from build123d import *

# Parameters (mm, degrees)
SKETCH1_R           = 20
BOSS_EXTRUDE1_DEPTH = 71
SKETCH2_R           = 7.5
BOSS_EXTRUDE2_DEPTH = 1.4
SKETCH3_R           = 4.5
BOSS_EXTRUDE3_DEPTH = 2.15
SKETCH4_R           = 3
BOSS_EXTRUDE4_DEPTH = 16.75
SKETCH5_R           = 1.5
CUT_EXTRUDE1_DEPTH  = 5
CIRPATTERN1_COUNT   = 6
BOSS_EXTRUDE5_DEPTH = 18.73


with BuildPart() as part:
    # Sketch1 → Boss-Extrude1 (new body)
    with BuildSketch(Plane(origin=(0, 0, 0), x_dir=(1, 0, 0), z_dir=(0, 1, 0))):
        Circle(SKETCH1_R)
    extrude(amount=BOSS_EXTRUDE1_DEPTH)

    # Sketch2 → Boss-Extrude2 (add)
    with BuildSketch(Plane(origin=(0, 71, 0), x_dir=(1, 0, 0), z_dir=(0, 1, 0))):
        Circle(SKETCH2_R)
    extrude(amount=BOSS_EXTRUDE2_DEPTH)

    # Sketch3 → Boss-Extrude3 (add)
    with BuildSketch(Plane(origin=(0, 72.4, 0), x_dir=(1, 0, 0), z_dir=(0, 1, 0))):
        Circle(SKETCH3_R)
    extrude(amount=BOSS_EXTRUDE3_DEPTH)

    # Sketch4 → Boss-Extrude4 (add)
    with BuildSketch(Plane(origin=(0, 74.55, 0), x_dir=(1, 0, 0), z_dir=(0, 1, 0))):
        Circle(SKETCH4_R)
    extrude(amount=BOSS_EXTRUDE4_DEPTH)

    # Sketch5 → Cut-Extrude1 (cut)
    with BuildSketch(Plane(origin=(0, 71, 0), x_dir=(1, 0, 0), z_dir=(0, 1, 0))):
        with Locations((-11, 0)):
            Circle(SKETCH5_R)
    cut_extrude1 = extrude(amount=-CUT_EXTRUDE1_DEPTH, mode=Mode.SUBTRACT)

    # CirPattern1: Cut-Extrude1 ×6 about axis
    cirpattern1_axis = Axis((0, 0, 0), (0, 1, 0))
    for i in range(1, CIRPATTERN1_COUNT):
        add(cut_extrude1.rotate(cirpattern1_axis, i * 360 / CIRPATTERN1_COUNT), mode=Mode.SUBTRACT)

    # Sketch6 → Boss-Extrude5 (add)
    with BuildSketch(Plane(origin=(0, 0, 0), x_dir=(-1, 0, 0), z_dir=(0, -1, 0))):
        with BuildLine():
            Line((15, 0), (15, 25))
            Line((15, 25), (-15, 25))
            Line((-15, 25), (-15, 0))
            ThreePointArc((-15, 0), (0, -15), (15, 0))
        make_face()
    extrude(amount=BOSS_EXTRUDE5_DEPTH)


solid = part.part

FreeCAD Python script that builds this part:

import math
import FreeCAD as App
import Part
import Sketcher
from FreeCAD import Vector
Q = App.Units.Quantity

doc = App.newDocument("Part")
body = doc.addObject("PartDesign::Body", "Body")

# Sketch on XZ plane
sketch1 = body.newObject("Sketcher::SketchObject", "Sketch")
sketch1.AttachmentSupport = (doc.getObject("XZ_Plane"), [""])
sketch1.MapMode = "FlatFace"
sketch1.addGeometry(Part.Circle(Vector(0, 0, 0), Vector(0, 0, 1), 20), False)
sketch1.addConstraint(Sketcher.Constraint("Coincident", 0, 3, -1, 1))
sketch1.addConstraint(Sketcher.Constraint("Diameter", 0, Q("40 mm")))
pad1 = body.newObject("PartDesign::Pad", "Pad")
pad1.Profile = sketch1
pad1.Length = 71
pad1.Reversed = True

# Sketch on XZ plane
sketch2 = body.newObject("Sketcher::SketchObject", "Sketch001")
sketch2.AttachmentSupport = (doc.getObject("XZ_Plane"), [""])
sketch2.MapMode = "FlatFace"
sketch2.AttachmentOffset = App.Placement(Vector(0, 0, -71), App.Rotation())
sketch2.addGeometry(Part.Circle(Vector(0, 0, 0), Vector(0, 0, 1), 8), False)
sketch2.addConstraint(Sketcher.Constraint("Coincident", 0, 3, -1, 1))
sketch2.addConstraint(Sketcher.Constraint("Diameter", 0, Q("15 mm")))
pad2 = body.newObject("PartDesign::Pad", "Pad001")
pad2.Profile = sketch2
pad2.Length = 1.4
pad2.Reversed = True

# Sketch on XZ plane
sketch3 = body.newObject("Sketcher::SketchObject", "Sketch002")
sketch3.AttachmentSupport = (doc.getObject("XZ_Plane"), [""])
sketch3.MapMode = "FlatFace"
sketch3.AttachmentOffset = App.Placement(Vector(0, 0, -72.4), App.Rotation())
sketch3.addGeometry(Part.Circle(Vector(0, 0, 0), Vector(0, 0, 1), 4.5), False)
sketch3.addConstraint(Sketcher.Constraint("Coincident", 0, 3, -1, 1))
sketch3.addConstraint(Sketcher.Constraint("Diameter", 0, Q("9 mm")))
pad3 = body.newObject("PartDesign::Pad", "Pad002")
pad3.Profile = sketch3
pad3.Length = 2.15
pad3.Reversed = True

# Sketch on XZ plane
sketch4 = body.newObject("Sketcher::SketchObject", "Sketch003")
sketch4.AttachmentSupport = (doc.getObject("XZ_Plane"), [""])
sketch4.MapMode = "FlatFace"
sketch4.AttachmentOffset = App.Placement(Vector(0, 0, -74.55), App.Rotation())
sketch4.addGeometry(Part.Circle(Vector(0, 0, 0), Vector(0, 0, 1), 3), False)
sketch4.addConstraint(Sketcher.Constraint("Coincident", 0, 3, -1, 1))
sketch4.addConstraint(Sketcher.Constraint("Diameter", 0, Q("6 mm")))
pad4 = body.newObject("PartDesign::Pad", "Pad003")
pad4.Profile = sketch4
pad4.Length = 16.75
pad4.Reversed = True

# Sketch on XZ plane
sketch5 = body.newObject("Sketcher::SketchObject", "Sketch004")
sketch5.AttachmentSupport = (doc.getObject("XZ_Plane"), [""])
sketch5.MapMode = "FlatFace"
sketch5.AttachmentOffset = App.Placement(Vector(0, 0, -71), App.Rotation())
sketch5.addGeometry(Part.Circle(Vector(-11, 0, 0), Vector(0, 0, 1), 1.5), False)
sketch5.addConstraint(Sketcher.Constraint("PointOnObject", 0, 3, -1))
sketch5.addConstraint(Sketcher.Constraint("Diameter", 0, Q("3 mm")))
sketch5.addConstraint(Sketcher.Constraint("DistanceX", 0, 3, -1, 1, Q("11 mm")))
pocket1 = body.newObject("PartDesign::Pocket", "Pocket")
pocket1.Profile = sketch5
pocket1.Length = 5
pocket1.Reversed = True
doc.recompute()

polarpattern = body.newObject("PartDesign::PolarPattern", "PolarPattern")
polarpattern.Originals = [pocket1]
polarpattern.Axis = (doc.getObject("Y_Axis"), [""])
polarpattern.Angle = 360
polarpattern.Occurrences = 6
body.Tip = polarpattern

# Sketch on XZ plane
sketch6 = body.newObject("Sketcher::SketchObject", "Sketch005")
sketch6.AttachmentSupport = (doc.getObject("XZ_Plane"), [""])
sketch6.MapMode = "FlatFace"
sketch6.addGeometry(Part.LineSegment(Vector(-15, 0, 0), Vector(-15, -25, 0)), False)
sketch6.addGeometry(Part.LineSegment(Vector(-15, -25, 0), Vector(15, -25, 0)), False)
sketch6.addGeometry(Part.LineSegment(Vector(15, -25, 0), Vector(15, 0, 0)), False)
sketch6.addGeometry(Part.ArcOfCircle(Part.Circle(Vector(0, 0, 0), Vector(0, 0, 1), 15), math.radians(0), math.radians(180)), False)
sketch6.addConstraint(Sketcher.Constraint("Coincident", 0, 2, 1, 1))
sketch6.addConstraint(Sketcher.Constraint("Coincident", 1, 2, 2, 1))
sketch6.addConstraint(Sketcher.Constraint("Tangent", 2, 2, 3, 1))
sketch6.addConstraint(Sketcher.Constraint("Tangent", 3, 2, 0, 1))
sketch6.addConstraint(Sketcher.Constraint("Vertical", 0))
sketch6.addConstraint(Sketcher.Constraint("Horizontal", 1))
sketch6.addConstraint(Sketcher.Constraint("Vertical", 2))
sketch6.addConstraint(Sketcher.Constraint("Coincident", 3, 3, -1, 1))
sketch6.addConstraint(Sketcher.Constraint("Radius", 3, Q("15 mm")))
sketch6.addConstraint(Sketcher.Constraint("DistanceY", 0, 2, 0, 1, Q("25 mm")))
pad5 = body.newObject("PartDesign::Pad", "Pad004")
pad5.Profile = sketch6
pad5.Length = 18.73

doc.recompute()
